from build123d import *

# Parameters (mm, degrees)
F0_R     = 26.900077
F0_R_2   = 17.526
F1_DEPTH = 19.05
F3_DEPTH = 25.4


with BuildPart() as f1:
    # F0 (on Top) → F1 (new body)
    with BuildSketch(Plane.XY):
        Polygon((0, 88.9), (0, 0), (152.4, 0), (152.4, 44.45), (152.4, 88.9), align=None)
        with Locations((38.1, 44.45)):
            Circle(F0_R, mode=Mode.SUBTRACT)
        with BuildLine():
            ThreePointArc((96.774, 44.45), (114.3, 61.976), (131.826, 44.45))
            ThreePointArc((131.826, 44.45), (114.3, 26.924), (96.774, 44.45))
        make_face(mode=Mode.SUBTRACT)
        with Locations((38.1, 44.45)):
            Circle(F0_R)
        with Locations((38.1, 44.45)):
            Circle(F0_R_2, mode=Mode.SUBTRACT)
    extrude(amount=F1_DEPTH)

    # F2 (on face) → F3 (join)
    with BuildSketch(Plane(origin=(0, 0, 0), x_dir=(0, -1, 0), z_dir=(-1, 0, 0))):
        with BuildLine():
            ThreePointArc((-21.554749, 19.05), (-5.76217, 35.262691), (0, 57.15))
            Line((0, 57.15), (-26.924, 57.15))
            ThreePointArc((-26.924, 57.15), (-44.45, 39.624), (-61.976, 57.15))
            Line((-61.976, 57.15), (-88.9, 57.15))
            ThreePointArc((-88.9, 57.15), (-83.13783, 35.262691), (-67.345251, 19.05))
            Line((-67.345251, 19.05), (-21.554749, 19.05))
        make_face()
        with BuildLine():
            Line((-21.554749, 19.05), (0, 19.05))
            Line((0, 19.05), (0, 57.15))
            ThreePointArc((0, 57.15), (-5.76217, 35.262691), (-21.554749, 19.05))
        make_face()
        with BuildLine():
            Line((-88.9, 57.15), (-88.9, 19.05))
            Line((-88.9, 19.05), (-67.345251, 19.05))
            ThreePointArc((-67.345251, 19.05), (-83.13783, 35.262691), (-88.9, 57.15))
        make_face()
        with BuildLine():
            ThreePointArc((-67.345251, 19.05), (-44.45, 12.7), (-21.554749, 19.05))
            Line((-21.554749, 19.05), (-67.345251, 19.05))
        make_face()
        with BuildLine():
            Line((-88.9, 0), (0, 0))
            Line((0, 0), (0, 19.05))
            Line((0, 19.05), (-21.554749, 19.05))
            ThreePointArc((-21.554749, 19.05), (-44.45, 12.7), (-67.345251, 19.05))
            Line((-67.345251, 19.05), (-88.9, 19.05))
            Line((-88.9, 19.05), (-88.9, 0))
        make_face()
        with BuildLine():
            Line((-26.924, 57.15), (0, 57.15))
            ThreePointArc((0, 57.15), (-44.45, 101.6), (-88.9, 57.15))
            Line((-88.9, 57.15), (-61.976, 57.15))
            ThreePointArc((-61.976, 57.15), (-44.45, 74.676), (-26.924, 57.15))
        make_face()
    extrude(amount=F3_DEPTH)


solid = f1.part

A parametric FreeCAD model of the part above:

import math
import FreeCAD as App
import Part
import Sketcher
Q = App.Units.Quantity


def add_polygon(sketch, points):
    """Adds a closed chain of lines whose ends are joined by coincident constraints."""
    first, n = sketch.GeometryCount, len(points)
    for a, b in zip(points, points[1:] + points[:1]):
        sketch.addGeometry(Part.LineSegment(App.Vector(*a, 0), App.Vector(*b, 0)), False)
    for i in range(n):
        sketch.addConstraint(Sketcher.Constraint("Coincident", first + i, 2, first + (i + 1) % n, 1))

doc = App.newDocument("Part")
body = doc.addObject("PartDesign::Body", "Body")

sketch1 = doc.addObject("Sketcher::SketchObject", "Sketch")
body.addObject(sketch1)
sketch1.AttachmentSupport = (doc.XY_Plane, [""])
sketch1.MapMode = "FlatFace"
add_polygon(sketch1, [(0, 89), (0, 0), (152, 0), (152, 89)])
sketch1.addGeometry(Part.Circle(App.Vector(114, 44, 0), App.Vector(0, 0, 1), 18), False)
sketch1.addGeometry(Part.Circle(App.Vector(38, 44, 0), App.Vector(0, 0, 1), 18), False)
sketch1.addConstraint([
    Sketcher.Constraint("Vertical", 0),
    Sketcher.Constraint("Horizontal", 1),
    Sketcher.Constraint("Vertical", 2),
    Sketcher.Constraint("Horizontal", 3),
    Sketcher.Constraint("Coincident", 0, 2, -1, 1),
    Sketcher.Constraint("Equal", 4, 5),
    Sketcher.Constraint("Horizontal", 4, 3, 5, 3),
    Sketcher.Constraint("Diameter", 4, Q("1.38 in")),
    Sketcher.Constraint("DistanceX", 1, 1, 1, 2, Q("6 in")),
    Sketcher.Constraint("DistanceY", 0, 2, 0, 1, Q("3.5 in")),
    Sketcher.Constraint("DistanceX", 5, 3, 4, 3, Q("3 in")),
    Sketcher.Constraint("DistanceX", -1, 1, 4, 3, Q("4.5 in")),
    Sketcher.Constraint("DistanceY", -1, 1, 4, 3, Q("1.75 in")),
])
pad1 = doc.addObject("PartDesign::Pad", "Pad")
body.addObject(pad1)
pad1.Profile = sketch1
pad1.Length = Q("0.75 in")

sketch2 = doc.addObject("Sketcher::SketchObject", "Sketch001")
body.addObject(sketch2)
sketch2.AttachmentSupport = (doc.YZ_Plane, [""])
sketch2.MapMode = "FlatFace"
sketch2.addGeometry([
    Part.LineSegment(App.Vector(89, 57, 0), App.Vector(89, 0, 0)),
    Part.LineSegment(App.Vector(89, 0, 0), App.Vector(0, 0, 0)),
    Part.LineSegment(App.Vector(0, 0, 0), App.Vector(0, 57, 0)),
    Part.ArcOfCircle(Part.Circle(App.Vector(44, 57, 0), App.Vector(0, 0, 1), 44), math.radians(0), math.radians(180)),
    Part.Circle(App.Vector(44, 57, 0), App.Vector(0, 0, 1), 18),
], False)
sketch2.addConstraint([
    Sketcher.Constraint("Coincident", 0, 2, 1, 1),
    Sketcher.Constraint("Coincident", 1, 2, 2, 1),
    Sketcher.Constraint("Tangent", 2, 2, 3, 2),
    Sketcher.Constraint("Tangent", 3, 1, 0, 1),
    Sketcher.Constraint("Vertical", 0),
    Sketcher.Constraint("Horizontal", 1),
    Sketcher.Constraint("Vertical", 2),
    Sketcher.Constraint("Coincident", 1, 2, -1, 1),
    Sketcher.Constraint("Coincident", 4, 3, 3, 3),
    Sketcher.Constraint("Diameter", 4, Q("1.38 in")),
    Sketcher.Constraint("Radius", 3, Q("1.75 in")),
    Sketcher.Constraint("DistanceY", 0, 2, 0, 1, Q("2.25 in")),
])
pad2 = doc.addObject("PartDesign::Pad", "Pad001")
body.addObject(pad2)
pad2.Profile = sketch2
pad2.Length = Q("1 in")
pad2.Reversed = True

doc.recompute()
